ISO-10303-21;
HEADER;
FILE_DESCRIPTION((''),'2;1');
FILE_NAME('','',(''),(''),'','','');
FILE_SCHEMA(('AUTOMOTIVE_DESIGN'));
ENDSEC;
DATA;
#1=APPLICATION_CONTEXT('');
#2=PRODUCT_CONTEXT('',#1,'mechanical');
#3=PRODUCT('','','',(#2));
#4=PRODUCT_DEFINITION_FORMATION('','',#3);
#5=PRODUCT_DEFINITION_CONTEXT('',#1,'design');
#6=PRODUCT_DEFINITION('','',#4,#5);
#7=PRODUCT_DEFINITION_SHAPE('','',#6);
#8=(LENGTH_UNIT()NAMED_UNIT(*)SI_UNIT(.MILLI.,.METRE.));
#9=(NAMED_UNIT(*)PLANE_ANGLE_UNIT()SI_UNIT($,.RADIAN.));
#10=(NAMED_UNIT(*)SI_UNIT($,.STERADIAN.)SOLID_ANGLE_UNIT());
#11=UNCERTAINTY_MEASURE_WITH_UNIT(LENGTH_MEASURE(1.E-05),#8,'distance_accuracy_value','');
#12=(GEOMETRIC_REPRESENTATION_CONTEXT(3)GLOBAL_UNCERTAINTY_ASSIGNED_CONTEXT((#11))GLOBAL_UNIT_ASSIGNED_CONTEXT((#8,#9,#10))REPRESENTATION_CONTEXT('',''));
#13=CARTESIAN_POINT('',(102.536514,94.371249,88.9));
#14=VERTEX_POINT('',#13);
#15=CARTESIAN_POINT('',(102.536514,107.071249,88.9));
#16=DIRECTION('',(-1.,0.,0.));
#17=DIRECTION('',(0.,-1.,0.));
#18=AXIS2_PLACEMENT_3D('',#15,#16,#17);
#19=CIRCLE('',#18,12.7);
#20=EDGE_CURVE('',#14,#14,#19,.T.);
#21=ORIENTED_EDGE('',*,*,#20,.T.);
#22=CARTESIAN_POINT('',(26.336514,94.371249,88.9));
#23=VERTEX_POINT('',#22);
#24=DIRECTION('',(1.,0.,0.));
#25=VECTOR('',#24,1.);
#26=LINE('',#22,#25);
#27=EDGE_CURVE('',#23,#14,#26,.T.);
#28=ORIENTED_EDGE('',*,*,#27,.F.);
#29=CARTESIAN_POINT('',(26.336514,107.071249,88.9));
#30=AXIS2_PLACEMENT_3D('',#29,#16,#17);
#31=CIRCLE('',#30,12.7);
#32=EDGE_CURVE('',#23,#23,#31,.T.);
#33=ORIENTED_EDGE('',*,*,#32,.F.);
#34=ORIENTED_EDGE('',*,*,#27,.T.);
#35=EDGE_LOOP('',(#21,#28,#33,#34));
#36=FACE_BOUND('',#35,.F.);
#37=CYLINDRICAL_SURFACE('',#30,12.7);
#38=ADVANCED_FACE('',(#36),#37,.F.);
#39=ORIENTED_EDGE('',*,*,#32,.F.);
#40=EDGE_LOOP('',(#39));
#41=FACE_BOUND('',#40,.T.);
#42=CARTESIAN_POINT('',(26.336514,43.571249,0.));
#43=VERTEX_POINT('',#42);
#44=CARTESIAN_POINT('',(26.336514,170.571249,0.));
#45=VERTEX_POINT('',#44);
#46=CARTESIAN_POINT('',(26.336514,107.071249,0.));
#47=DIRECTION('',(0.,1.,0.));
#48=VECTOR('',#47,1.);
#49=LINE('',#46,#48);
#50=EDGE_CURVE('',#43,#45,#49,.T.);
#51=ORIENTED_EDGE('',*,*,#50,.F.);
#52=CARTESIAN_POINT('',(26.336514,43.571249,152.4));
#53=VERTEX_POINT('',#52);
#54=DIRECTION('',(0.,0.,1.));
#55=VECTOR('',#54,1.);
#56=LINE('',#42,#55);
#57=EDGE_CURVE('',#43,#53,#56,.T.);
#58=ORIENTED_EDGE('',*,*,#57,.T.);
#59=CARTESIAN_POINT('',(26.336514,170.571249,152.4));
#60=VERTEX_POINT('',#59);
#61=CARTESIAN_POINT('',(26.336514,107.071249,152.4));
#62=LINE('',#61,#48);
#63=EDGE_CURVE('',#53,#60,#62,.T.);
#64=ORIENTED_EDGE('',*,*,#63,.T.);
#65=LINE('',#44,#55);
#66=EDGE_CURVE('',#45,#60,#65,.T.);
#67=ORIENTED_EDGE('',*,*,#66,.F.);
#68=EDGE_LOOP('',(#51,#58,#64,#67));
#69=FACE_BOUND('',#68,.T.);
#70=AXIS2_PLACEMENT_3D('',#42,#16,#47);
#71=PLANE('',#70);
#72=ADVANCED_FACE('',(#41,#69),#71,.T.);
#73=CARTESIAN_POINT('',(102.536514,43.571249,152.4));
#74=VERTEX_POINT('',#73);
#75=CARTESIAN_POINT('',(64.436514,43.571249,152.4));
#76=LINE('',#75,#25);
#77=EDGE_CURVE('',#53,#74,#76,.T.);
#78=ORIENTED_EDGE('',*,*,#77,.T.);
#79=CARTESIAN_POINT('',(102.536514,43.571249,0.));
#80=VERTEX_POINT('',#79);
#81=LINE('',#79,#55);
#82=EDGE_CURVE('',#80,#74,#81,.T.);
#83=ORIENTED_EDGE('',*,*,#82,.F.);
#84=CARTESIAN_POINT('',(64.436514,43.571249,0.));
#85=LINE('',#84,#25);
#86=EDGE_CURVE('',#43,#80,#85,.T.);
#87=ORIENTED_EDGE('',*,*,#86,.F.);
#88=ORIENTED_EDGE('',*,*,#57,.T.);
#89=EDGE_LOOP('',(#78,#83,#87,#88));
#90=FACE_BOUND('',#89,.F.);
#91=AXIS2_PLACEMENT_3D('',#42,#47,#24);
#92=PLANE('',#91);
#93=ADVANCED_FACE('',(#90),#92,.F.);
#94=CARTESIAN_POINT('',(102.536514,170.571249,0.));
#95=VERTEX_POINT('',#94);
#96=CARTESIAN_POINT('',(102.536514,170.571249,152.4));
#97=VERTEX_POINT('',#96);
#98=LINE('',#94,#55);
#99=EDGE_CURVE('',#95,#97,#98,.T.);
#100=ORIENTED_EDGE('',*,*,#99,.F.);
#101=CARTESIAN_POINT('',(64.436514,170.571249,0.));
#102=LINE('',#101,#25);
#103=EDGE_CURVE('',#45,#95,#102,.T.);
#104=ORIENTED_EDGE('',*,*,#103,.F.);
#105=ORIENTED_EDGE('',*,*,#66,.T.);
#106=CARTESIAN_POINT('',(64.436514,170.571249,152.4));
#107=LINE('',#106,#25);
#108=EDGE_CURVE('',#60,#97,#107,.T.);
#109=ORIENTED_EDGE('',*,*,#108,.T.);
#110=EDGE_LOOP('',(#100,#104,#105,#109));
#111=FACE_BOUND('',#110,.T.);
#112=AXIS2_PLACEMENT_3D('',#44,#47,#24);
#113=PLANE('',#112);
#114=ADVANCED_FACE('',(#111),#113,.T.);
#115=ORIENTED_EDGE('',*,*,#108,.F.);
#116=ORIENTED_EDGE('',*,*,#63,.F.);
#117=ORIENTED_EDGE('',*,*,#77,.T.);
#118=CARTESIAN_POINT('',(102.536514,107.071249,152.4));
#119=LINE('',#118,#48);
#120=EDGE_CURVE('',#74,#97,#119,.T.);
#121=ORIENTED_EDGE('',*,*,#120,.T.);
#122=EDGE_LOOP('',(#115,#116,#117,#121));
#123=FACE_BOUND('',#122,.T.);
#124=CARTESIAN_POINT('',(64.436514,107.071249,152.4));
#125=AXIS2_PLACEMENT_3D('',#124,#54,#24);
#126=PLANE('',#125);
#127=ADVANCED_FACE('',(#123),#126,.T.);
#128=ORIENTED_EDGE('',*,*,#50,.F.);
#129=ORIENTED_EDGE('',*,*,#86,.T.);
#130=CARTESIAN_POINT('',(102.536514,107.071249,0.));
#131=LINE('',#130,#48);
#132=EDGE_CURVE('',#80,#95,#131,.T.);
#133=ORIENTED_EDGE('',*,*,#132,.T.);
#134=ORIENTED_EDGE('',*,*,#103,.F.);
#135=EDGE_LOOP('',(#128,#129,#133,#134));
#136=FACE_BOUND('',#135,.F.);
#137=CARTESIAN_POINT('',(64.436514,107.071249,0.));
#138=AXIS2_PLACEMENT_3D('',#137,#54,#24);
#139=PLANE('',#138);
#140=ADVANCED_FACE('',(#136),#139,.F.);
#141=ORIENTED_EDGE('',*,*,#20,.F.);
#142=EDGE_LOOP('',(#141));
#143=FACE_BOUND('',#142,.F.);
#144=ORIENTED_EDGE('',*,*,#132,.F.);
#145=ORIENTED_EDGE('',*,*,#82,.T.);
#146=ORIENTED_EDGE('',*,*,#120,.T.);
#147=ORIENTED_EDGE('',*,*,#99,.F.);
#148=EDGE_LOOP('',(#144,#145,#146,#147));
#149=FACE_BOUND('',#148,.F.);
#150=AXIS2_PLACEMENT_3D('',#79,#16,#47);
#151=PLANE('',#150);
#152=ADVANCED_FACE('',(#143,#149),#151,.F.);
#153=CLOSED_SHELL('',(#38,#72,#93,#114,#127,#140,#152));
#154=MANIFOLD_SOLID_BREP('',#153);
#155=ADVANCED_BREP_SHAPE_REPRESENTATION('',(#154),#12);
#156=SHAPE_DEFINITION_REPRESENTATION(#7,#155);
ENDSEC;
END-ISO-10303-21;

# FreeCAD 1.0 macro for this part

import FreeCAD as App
import Part
import Sketcher
from FreeCAD import Vector
Q = App.Units.Quantity

doc = App.newDocument("Part")
body = doc.addObject("PartDesign::Body", "Body")

sketch1 = body.newObject("Sketcher::SketchObject", "Sketch")
sketch1.AttachmentSupport = (doc.getObject("XY_Plane"), [""])
sketch1.MapMode = "FlatFace"
sketch1.addGeometry(Part.LineSegment(Vector(26, 171, 0), Vector(26, 44, 0)), False)
sketch1.addGeometry(Part.LineSegment(Vector(26, 44, 0), Vector(103, 44, 0)), False)
sketch1.addGeometry(Part.LineSegment(Vector(103, 44, 0), Vector(103, 171, 0)), False)
sketch1.addGeometry(Part.LineSegment(Vector(103, 171, 0), Vector(26, 171, 0)), False)
sketch1.addConstraint(Sketcher.Constraint("Coincident", 0, 2, 1, 1))
sketch1.addConstraint(Sketcher.Constraint("Coincident", 1, 2, 2, 1))
sketch1.addConstraint(Sketcher.Constraint("Coincident", 2, 2, 3, 1))
sketch1.addConstraint(Sketcher.Constraint("Coincident", 3, 2, 0, 1))
sketch1.addConstraint(Sketcher.Constraint("Vertical", 0))
sketch1.addConstraint(Sketcher.Constraint("Horizontal", 1))
sketch1.addConstraint(Sketcher.Constraint("Vertical", 2))
sketch1.addConstraint(Sketcher.Constraint("Horizontal", 3))
sketch1.addConstraint(Sketcher.Constraint("DistanceX", 1, 1, 1, 2, Q("3 in")))
sketch1.addConstraint(Sketcher.Constraint("DistanceY", 0, 2, 0, 1, Q("5 in")))
sketch1.addConstraint(Sketcher.Constraint("DistanceY", -1, 1, 0, 2, Q("43.571249 mm")))
sketch1.addConstraint(Sketcher.Constraint("DistanceX", -1, 1, 0, 2, Q("26.336514 mm")))
pad1 = body.newObject("PartDesign::Pad", "Pad")
pad1.Profile = sketch1
pad1.Length = Q("6 in")

sketch2 = body.newObject("Sketcher::SketchObject", "Sketch001")
sketch2.AttachmentSupport = (doc.getObject("YZ_Plane"), [""])
sketch2.MapMode = "FlatFace"
sketch2.AttachmentOffset = App.Placement(Vector(0, 0, 26.336514), App.Rotation())
sketch2.addGeometry(Part.Circle(Vector(107, 89, 0), Vector(0, 0, 1), 13), False)
sketch2.addConstraint(Sketcher.Constraint("Diameter", 0, Q("1 in")))
sketch2.addConstraint(Sketcher.Constraint("DistanceY", -1, 1, 0, 3, Q("3.5 in")))
sketch2.addConstraint(Sketcher.Constraint("DistanceX", -1, 1, 0, 3, Q("107.071249 mm")))
pocket1 = body.newObject("PartDesign::Pocket", "Pocket")
pocket1.Profile = sketch2
pocket1.Type = "ThroughAll"
pocket1.Reversed = True

doc.recompute()
